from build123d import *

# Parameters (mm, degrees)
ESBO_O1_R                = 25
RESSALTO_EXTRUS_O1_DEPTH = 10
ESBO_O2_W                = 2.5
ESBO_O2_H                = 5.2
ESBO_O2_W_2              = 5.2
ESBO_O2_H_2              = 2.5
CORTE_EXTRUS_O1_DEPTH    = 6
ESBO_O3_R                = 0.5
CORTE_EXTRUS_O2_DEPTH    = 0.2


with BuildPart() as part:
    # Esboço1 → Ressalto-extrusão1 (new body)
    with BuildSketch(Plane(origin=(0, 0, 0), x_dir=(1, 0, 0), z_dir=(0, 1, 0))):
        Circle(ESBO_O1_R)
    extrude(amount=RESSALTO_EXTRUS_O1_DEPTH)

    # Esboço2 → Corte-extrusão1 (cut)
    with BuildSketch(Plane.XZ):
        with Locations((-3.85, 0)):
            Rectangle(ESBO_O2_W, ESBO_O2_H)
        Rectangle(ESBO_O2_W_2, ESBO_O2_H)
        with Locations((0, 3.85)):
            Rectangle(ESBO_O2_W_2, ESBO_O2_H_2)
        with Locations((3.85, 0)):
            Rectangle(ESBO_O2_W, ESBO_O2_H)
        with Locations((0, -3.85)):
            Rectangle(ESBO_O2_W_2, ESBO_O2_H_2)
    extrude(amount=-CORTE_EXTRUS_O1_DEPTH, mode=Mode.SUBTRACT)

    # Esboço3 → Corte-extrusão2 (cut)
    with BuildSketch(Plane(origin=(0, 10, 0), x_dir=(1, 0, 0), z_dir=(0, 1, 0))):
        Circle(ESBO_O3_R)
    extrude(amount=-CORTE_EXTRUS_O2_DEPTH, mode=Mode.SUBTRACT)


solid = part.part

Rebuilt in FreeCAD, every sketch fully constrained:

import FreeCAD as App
import Part
import Sketcher

doc = App.newDocument("Part")
body = doc.addObject("PartDesign::Body", "Body")

sketch1 = body.newObject("Sketcher::SketchObject", "Sketch")
sketch1.AttachmentSupport = (doc.getObject("XZ_Plane"), [""])
sketch1.MapMode = "FlatFace"
sketch1.addGeometry(Part.Circle(App.Vector(0, 0, 0), App.Vector(0, 0, 1), 25), False)
sketch1.addConstraint([
    Sketcher.Constraint("Coincident", 0, 3, -1, 1),
    Sketcher.Constraint("Diameter", 0, 50.0),
])
pad1 = body.newObject("PartDesign::Pad", "Pad")
pad1.Profile = sketch1
pad1.Length = 10
pad1.Reversed = True

sketch2 = body.newObject("Sketcher::SketchObject", "Sketch001")
sketch2.AttachmentSupport = (doc.getObject("XZ_Plane"), [""])
sketch2.MapMode = "FlatFace"
sketch2.addGeometry([
    Part.LineSegment(App.Vector(-5.1, 2.6, 0), App.Vector(-5.1, -2.6, 0)),
    Part.LineSegment(App.Vector(-5.1, -2.6, 0), App.Vector(-2.6, -2.6, 0)),
    Part.LineSegment(App.Vector(-2.6, -2.6, 0), App.Vector(-2.6, -5.1, 0)),
    Part.LineSegment(App.Vector(-2.6, -5.1, 0), App.Vector(2.6, -5.1, 0)),
    Part.LineSegment(App.Vector(2.6, -5.1, 0), App.Vector(2.6, -2.6, 0)),
    Part.LineSegment(App.Vector(2.6, -2.6, 0), App.Vector(5.1, -2.6, 0)),
    Part.LineSegment(App.Vector(5.1, -2.6, 0), App.Vector(5.1, 2.6, 0)),
    Part.LineSegment(App.Vector(5.1, 2.6, 0), App.Vector(2.6, 2.6, 0)),
    Part.LineSegment(App.Vector(2.6, 2.6, 0), App.Vector(2.6, 5.1, 0)),
    Part.LineSegment(App.Vector(2.6, 5.1, 0), App.Vector(-2.6, 5.1, 0)),
    Part.LineSegment(App.Vector(-2.6, 5.1, 0), App.Vector(-2.6, 2.6, 0)),
    Part.LineSegment(App.Vector(-2.6, 2.6, 0), App.Vector(-5.1, 2.6, 0)),
], False)
sketch2.addConstraint([
    Sketcher.Constraint("Coincident", 0, 2, 1, 1),
    Sketcher.Constraint("Coincident", 1, 2, 2, 1),
    Sketcher.Constraint("Coincident", 2, 2, 3, 1),
    Sketcher.Constraint("Coincident", 3, 2, 4, 1),
    Sketcher.Constraint("Coincident", 4, 2, 5, 1),
    Sketcher.Constraint("Coincident", 5, 2, 6, 1),
    Sketcher.Constraint("Coincident", 6, 2, 7, 1),
    Sketcher.Constraint("Coincident", 7, 2, 8, 1),
    Sketcher.Constraint("Coincident", 8, 2, 9, 1),
    Sketcher.Constraint("Coincident", 9, 2, 10, 1),
    Sketcher.Constraint("Coincident", 10, 2, 11, 1),
    Sketcher.Constraint("Coincident", 11, 2, 0, 1),
    Sketcher.Constraint("Vertical", 0),
    Sketcher.Constraint("Horizontal", 1),
    Sketcher.Constraint("Vertical", 2),
    Sketcher.Constraint("Horizontal", 3),
    Sketcher.Constraint("Vertical", 4),
    Sketcher.Constraint("Horizontal", 5),
    Sketcher.Constraint("Vertical", 6),
    Sketcher.Constraint("Horizontal", 7),
    Sketcher.Constraint("Vertical", 8),
    Sketcher.Constraint("Horizontal", 9),
    Sketcher.Constraint("Vertical", 10),
    Sketcher.Constraint("Horizontal", 11),
    Sketcher.Constraint("Symmetric", 0, 2, 6, 2, -1, 1),
    Sketcher.Constraint("Symmetric", 2, 2, 8, 2, -1, 1),
    Sketcher.Constraint("Symmetric", 4, 2, 10, 2, -1, 1),
    Sketcher.Constraint("Symmetric", 1, 2, 4, 2, -2),
    Sketcher.Constraint("Equal", 9, 0),
    Sketcher.Constraint("Equal", 11, 2),
    Sketcher.Constraint("DistanceX", 1, 1, 1, 2, 2.5),
    Sketcher.Constraint("DistanceX", 3, 1, 3, 2, 5.2),
])
pocket1 = body.newObject("PartDesign::Pocket", "Pocket")
pocket1.Profile = sketch2
pocket1.Length = 6

sketch3 = body.newObject("Sketcher::SketchObject", "Sketch002")
sketch3.AttachmentSupport = (doc.getObject("XZ_Plane"), [""])
sketch3.MapMode = "FlatFace"
sketch3.AttachmentOffset = App.Placement(App.Vector(0, 0, -10), App.Rotation())
sketch3.addGeometry(Part.Circle(App.Vector(0, 0, 0), App.Vector(0, 0, 1), 0.5), False)
sketch3.addConstraint([
    Sketcher.Constraint("Coincident", 0, 3, -1, 1),
    Sketcher.Constraint("Diameter", 0, 1.0),
])
pocket2 = body.newObject("PartDesign::Pocket", "Pocket001")
pocket2.Profile = sketch3
pocket2.Length = 0.2
pocket2.Reversed = True

doc.recompute()
